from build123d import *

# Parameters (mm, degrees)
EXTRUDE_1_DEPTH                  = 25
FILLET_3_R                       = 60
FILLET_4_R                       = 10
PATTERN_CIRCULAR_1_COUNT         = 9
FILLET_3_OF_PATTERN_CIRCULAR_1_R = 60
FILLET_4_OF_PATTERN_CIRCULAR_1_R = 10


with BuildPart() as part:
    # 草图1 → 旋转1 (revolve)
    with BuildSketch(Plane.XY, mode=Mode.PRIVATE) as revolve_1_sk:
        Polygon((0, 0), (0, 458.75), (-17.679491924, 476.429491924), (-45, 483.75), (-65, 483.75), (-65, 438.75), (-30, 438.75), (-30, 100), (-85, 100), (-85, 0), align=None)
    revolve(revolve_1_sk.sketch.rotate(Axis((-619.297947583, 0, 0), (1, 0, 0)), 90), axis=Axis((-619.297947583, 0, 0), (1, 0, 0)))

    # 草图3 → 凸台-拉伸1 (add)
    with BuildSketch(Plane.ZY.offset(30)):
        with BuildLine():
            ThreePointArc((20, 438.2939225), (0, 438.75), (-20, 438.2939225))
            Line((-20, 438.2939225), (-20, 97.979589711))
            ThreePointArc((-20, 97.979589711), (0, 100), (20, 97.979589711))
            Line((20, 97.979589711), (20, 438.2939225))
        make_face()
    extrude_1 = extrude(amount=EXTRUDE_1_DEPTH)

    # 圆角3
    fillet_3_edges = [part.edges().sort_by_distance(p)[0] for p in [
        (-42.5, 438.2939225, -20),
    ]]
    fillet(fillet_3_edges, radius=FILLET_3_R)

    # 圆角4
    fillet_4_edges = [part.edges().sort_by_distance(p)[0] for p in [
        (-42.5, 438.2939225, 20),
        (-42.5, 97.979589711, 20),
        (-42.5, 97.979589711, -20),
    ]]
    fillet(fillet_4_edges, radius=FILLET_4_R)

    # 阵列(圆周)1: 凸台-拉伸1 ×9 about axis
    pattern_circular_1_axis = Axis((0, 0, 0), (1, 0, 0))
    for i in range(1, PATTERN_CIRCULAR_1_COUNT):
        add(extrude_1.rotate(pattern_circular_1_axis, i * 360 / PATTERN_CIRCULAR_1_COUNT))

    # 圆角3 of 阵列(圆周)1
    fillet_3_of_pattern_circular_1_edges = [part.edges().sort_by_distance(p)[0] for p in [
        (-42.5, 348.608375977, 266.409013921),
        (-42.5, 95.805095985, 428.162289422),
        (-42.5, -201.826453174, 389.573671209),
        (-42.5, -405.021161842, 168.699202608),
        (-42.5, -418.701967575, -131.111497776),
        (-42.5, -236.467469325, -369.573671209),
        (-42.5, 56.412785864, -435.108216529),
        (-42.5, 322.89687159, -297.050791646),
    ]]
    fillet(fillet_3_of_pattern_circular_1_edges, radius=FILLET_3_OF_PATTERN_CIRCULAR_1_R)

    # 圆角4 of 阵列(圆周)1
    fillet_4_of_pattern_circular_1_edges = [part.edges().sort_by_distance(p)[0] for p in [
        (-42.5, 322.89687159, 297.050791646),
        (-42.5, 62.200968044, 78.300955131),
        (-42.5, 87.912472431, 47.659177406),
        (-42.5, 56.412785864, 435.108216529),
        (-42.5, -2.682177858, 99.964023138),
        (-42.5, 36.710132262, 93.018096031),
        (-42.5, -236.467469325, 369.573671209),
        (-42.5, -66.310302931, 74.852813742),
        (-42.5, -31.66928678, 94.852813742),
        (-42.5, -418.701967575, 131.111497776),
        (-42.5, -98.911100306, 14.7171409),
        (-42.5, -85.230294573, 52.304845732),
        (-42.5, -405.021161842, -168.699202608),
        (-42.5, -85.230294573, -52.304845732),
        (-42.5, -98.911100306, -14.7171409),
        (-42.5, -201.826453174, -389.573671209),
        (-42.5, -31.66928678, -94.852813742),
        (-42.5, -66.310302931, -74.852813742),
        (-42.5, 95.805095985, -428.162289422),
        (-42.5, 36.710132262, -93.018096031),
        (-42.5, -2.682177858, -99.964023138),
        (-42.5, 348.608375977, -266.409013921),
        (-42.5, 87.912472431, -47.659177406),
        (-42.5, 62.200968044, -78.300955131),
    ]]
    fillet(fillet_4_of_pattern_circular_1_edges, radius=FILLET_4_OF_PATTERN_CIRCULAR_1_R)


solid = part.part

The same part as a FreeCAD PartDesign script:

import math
import FreeCAD as App
import Part
import Sketcher
from FreeCAD import Vector
Q = App.Units.Quantity


def edges_at(feature, points):
    """Names of the edges that pass closest to the given points."""
    edges = feature.Shape.Edges
    near = lambda p: min(range(len(edges)), key=lambda i: edges[i].distToShape(Part.Vertex(*p))[0])
    return sorted({f"Edge{near(p) + 1}" for p in points})

doc = App.newDocument("Part")
body = doc.addObject("PartDesign::Body", "Body")

# Sketch on XY plane
sketch1 = body.newObject("Sketcher::SketchObject", "Sketch")
sketch1.AttachmentSupport = (doc.getObject("XY_Plane"), [""])
sketch1.MapMode = "FlatFace"
sketch1.addGeometry([
    Part.LineSegment(Vector(0, 0, 0), Vector(0, 459, 0)),  # 0
    Part.LineSegment(Vector(0, 459, 0), Vector(-18, 476, 0)),  # 1
    Part.LineSegment(Vector(-18, 476, 0), Vector(-45, 484, 0)),  # 2
    Part.LineSegment(Vector(-45, 484, 0), Vector(-65, 484, 0)),  # 3
    Part.LineSegment(Vector(-65, 484, 0), Vector(-65, 439, 0)),  # 4
    Part.LineSegment(Vector(-65, 439, 0), Vector(-30, 439, 0)),  # 5
    Part.LineSegment(Vector(-30, 439, 0), Vector(-30, 100, 0)),  # 6
    Part.LineSegment(Vector(-30, 100, 0), Vector(-85, 100, 0)),  # 7
    Part.LineSegment(Vector(-85, 100, 0), Vector(-85, 0, 0)),  # 8
    Part.LineSegment(Vector(-85, 0, 0), Vector(0, 0, 0)),  # 9
], False)
sketch1.addConstraint([
    Sketcher.Constraint("Coincident", 0, 2, 1, 1),
    Sketcher.Constraint("Coincident", 1, 2, 2, 1),
    Sketcher.Constraint("Coincident", 2, 2, 3, 1),
    Sketcher.Constraint("Coincident", 3, 2, 4, 1),
    Sketcher.Constraint("Coincident", 4, 2, 5, 1),
    Sketcher.Constraint("Coincident", 5, 2, 6, 1),
    Sketcher.Constraint("Coincident", 6, 2, 7, 1),
    Sketcher.Constraint("Coincident", 7, 2, 8, 1),
    Sketcher.Constraint("Coincident", 8, 2, 9, 1),
    Sketcher.Constraint("Coincident", 9, 2, 0, 1),
    Sketcher.Constraint("Vertical", 0),
    Sketcher.Constraint("Horizontal", 3),
    Sketcher.Constraint("Vertical", 4),
    Sketcher.Constraint("Horizontal", 5),
    Sketcher.Constraint("Vertical", 6),
    Sketcher.Constraint("Horizontal", 7),
    Sketcher.Constraint("Vertical", 8),
    Sketcher.Constraint("Horizontal", 9),
    Sketcher.Constraint("Coincident", 9, 2, -1, 1),
    Sketcher.Constraint("DistanceX", 3, 2, 3, 1, 20.0),
    Sketcher.Constraint("DistanceX", 5, 1, 5, 2, 35.0),
    Sketcher.Constraint("DistanceX", 7, 2, 7, 1, 55.0),
    Sketcher.Constraint("DistanceX", 9, 1, 9, 2, 85.0),
    Sketcher.Constraint("DistanceY", 4, 2, 4, 1, 45.0),
    Sketcher.Constraint("DistanceY", 8, 2, 8, 1, 100.0),
    Sketcher.Constraint("Angle", 1, Q("135 deg")),
    Sketcher.Constraint("Angle", 2, Q("165 deg")),
    Sketcher.Constraint("DistanceY", 0, 2, 2, 2, 25.0),
    Sketcher.Constraint("DistanceY", 0, 1, 0, 2, 458.75),
])
revolution = body.newObject("PartDesign::Revolution", "Revolution")
revolution.Profile = sketch1
revolution.ReferenceAxis = (sketch1, ["H_Axis"])
revolution.Angle = 360

# Sketch on YZ plane
sketch2 = body.newObject("Sketcher::SketchObject", "Sketch001")
sketch2.AttachmentSupport = (doc.getObject("YZ_Plane"), [""])
sketch2.MapMode = "FlatFace"
sketch2.AttachmentOffset = App.Placement(Vector(0, 0, -30), App.Rotation())
sketch2.addGeometry([
    Part.ArcOfCircle(Part.Circle(Vector(0, 0, 0), Vector(0, 0, 1), 439), math.radians(-2.61), math.radians(2.61)),
    Part.LineSegment(Vector(438, -20, 0), Vector(98, -20, 0)),
    Part.ArcOfCircle(Part.Circle(Vector(0, 0, 0), Vector(0, 0, 1), 100), math.radians(-12), math.radians(12)),
    Part.LineSegment(Vector(98, 20, 0), Vector(438, 20, 0)),
], False)
sketch2.addConstraint([
    Sketcher.Constraint("Coincident", 0, 1, 1, 1),
    Sketcher.Constraint("Coincident", 1, 2, 2, 1),
    Sketcher.Constraint("Coincident", 2, 2, 3, 1),
    Sketcher.Constraint("Coincident", 3, 2, 0, 2),
    Sketcher.Constraint("Horizontal", 1),
    Sketcher.Constraint("Horizontal", 3),
    Sketcher.Constraint("Coincident", 0, 3, -1, 1),
    Sketcher.Constraint("Coincident", 2, 3, -1, 1),
    Sketcher.Constraint("Vertical", 1, 2, 2, 2),
    Sketcher.Constraint("Radius", 2, 100.0),
    Sketcher.Constraint("Radius", 0, 438.75),
    Sketcher.Constraint("DistanceY", 1, 2, -1, 1, 20.0),
])
pad1 = body.newObject("PartDesign::Pad", "Pad")
pad1.Profile = sketch2
pad1.Length = 25
pad1.Reversed = True
doc.recompute()

fillet = body.newObject("PartDesign::Fillet", "Fillet")
fillet.Base = (pad1, edges_at(pad1, [(-42.5, 438.294, -20)]))
fillet.Radius = 60
doc.recompute()

fillet2 = body.newObject("PartDesign::Fillet", "Fillet001")
fillet2.Base = (fillet, edges_at(fillet, [(-42.5, 438.294, 20), (-42.5, 97.98, 20), (-42.5, 97.98, -20)]))
fillet2.Radius = 10
doc.recompute()

polarpattern = body.newObject("PartDesign::PolarPattern", "PolarPattern")
polarpattern.Originals = [pad1]
polarpattern.Axis = (doc.getObject("X_Axis"), [""])
polarpattern.Angle = 360
polarpattern.Occurrences = 9
body.Tip = polarpattern
doc.recompute()

fillet3 = body.newObject("PartDesign::Fillet", "Fillet002")
fillet3.Base = (polarpattern, edges_at(polarpattern, [
    (-42.5, 348.608, 266.409),
    (-42.5, 95.805, 428.162),
    (-42.5, -201.826, 389.574),
    (-42.5, -405.021, 168.699),
    (-42.5, -418.702, -131.111),
    (-42.5, -236.467, -369.574),
    (-42.5, 56.413, -435.108),
    (-42.5, 322.897, -297.051),
]))
fillet3.Radius = 60
doc.recompute()

fillet4 = body.newObject("PartDesign::Fillet", "Fillet003")
fillet4.Base = (fillet3, edges_at(fillet3, [
    (-42.5, 322.897, 297.051),
    (-42.5, 62.201, 78.301),
    (-42.5, 87.912, 47.659),
    (-42.5, 56.413, 435.108),
    (-42.5, -2.682, 99.964),
    (-42.5, 36.71, 93.018),
    (-42.5, -236.467, 369.574),
    (-42.5, -66.31, 74.853),
    (-42.5, -31.669, 94.853),
    (-42.5, -418.702, 131.111),
    (-42.5, -98.911, 14.717),
    (-42.5, -85.23, 52.305),
    (-42.5, -405.021, -168.699),
    (-42.5, -85.23, -52.305),
    (-42.5, -98.911, -14.717),
    (-42.5, -201.826, -389.574),
    (-42.5, -31.669, -94.853),
    (-42.5, -66.31, -74.853),
    (-42.5, 95.805, -428.162),
    (-42.5, 36.71, -93.018),
    (-42.5, -2.682, -99.964),
    (-42.5, 348.608, -266.409),
    (-42.5, 87.912, -47.659),
    (-42.5, 62.201, -78.301),
]))
fillet4.Radius = 10

doc.recompute()
